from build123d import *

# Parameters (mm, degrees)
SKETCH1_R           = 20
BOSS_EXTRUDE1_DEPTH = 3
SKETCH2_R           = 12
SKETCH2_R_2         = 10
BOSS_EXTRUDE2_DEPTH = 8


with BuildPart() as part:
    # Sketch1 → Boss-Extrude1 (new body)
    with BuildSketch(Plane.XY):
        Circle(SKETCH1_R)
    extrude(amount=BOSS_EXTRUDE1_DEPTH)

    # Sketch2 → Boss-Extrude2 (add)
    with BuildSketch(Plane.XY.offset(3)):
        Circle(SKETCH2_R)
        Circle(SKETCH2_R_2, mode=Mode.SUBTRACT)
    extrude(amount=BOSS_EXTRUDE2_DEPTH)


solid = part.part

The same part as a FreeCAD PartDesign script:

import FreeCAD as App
import Part
import Sketcher
from FreeCAD import Vector

doc = App.newDocument("Part")
body = doc.addObject("PartDesign::Body", "Body")

sketch1 = body.newObject("Sketcher::SketchObject", "Sketch")
sketch1.AttachmentSupport = (doc.getObject("XY_Plane"), [""])
sketch1.MapMode = "FlatFace"
sketch1.addGeometry(Part.Circle(Vector(0, 0, 0), Vector(0, 0, 1), 20), False)
sketch1.addConstraint(Sketcher.Constraint("Coincident", 0, 3, -1, 1))
sketch1.addConstraint(Sketcher.Constraint("Diameter", 0, 40.0))
pad1 = body.newObject("PartDesign::Pad", "Pad")
pad1.Profile = sketch1
pad1.Length = 3

sketch2 = body.newObject("Sketcher::SketchObject", "Sketch001")
sketch2.AttachmentSupport = (doc.getObject("XY_Plane"), [""])
sketch2.MapMode = "FlatFace"
sketch2.AttachmentOffset = App.Placement(Vector(0, 0, 3), App.Rotation())
sketch2.addGeometry(Part.Circle(Vector(0, 0, 0), Vector(0, 0, 1), 12), False)
sketch2.addGeometry(Part.Circle(Vector(0, 0, 0), Vector(0, 0, 1), 10), False)
sketch2.addConstraint(Sketcher.Constraint("Coincident", 0, 3, -1, 1))
sketch2.addConstraint(Sketcher.Constraint("Coincident", 1, 3, -1, 1))
sketch2.addConstraint(Sketcher.Constraint("Diameter", 0, 24.0))
sketch2.addConstraint(Sketcher.Constraint("Diameter", 1, 20.0))
pad2 = body.newObject("PartDesign::Pad", "Pad001")
pad2.Profile = sketch2
pad2.Length = 8

doc.recompute()
